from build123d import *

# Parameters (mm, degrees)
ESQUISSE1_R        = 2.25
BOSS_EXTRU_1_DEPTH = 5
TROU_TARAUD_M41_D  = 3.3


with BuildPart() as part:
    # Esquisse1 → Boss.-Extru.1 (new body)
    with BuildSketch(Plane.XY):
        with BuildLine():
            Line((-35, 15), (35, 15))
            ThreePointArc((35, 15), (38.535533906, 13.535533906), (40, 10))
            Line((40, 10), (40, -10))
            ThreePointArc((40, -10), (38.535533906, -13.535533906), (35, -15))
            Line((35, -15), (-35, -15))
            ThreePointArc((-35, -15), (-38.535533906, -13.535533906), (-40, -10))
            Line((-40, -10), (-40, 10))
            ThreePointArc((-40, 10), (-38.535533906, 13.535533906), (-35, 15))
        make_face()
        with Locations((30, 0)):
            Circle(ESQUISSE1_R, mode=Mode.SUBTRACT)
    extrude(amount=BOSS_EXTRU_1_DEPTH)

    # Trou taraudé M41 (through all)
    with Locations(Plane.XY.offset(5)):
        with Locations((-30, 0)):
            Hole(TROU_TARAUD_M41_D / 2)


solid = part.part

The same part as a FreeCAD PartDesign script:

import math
import FreeCAD as App
import Part
import Sketcher

V = App.Vector
Q = App.Units.Quantity

doc = App.newDocument("Part")
params = doc.addObject("Spreadsheet::Sheet", "Params")
for row, (alias, value) in enumerate([
    ("sketch1_radius", "5 mm"),
    ("sketch1_diameter", "4.5 mm"),
    ("sketch1_width", "70 mm"),
    ("sketch1_height", "20 mm"),
    ("pad1_length", "5 mm"),
    ("sketch2_diameter", "3.3 mm"),
    ("hole_diameter", "3.3 mm"),
], start=1):
    params.set(f"A{row}", alias)
    params.set(f"B{row}", "=" + value)
    params.setAlias(f"B{row}", alias)

body = doc.addObject("PartDesign::Body", "Body")

sketch1 = body.newObject("Sketcher::SketchObject", "Sketch")
sketch1.AttachmentSupport = (doc.getObject("XY_Plane"), [""])
sketch1.MapMode = "FlatFace"
sketch1.addGeometry(Part.LineSegment(V(35, 15, 0), V(-35, 15, 0)), False)
sketch1.addGeometry(Part.ArcOfCircle(Part.Circle(V(-35, 10, 0), V(0, 0, 1), 5), math.radians(90), math.radians(180)), False)
sketch1.addGeometry(Part.LineSegment(V(-40, 10, 0), V(-40, -10, 0)), False)
sketch1.addGeometry(Part.ArcOfCircle(Part.Circle(V(-35, -10, 0), V(0, 0, 1), 5), math.radians(180), math.radians(270)), False)
sketch1.addGeometry(Part.LineSegment(V(-35, -15, 0), V(35, -15, 0)), False)
sketch1.addGeometry(Part.ArcOfCircle(Part.Circle(V(35, -10, 0), V(0, 0, 1), 5), math.radians(-90), math.radians(0)), False)
sketch1.addGeometry(Part.LineSegment(V(40, -10, 0), V(40, 10, 0)), False)
sketch1.addGeometry(Part.ArcOfCircle(Part.Circle(V(35, 10, 0), V(0, 0, 1), 5), math.radians(0), math.radians(90)), False)
sketch1.addGeometry(Part.Circle(V(30, 0, 0), V(0, 0, 1), 2.2), False)
sketch1.addConstraint(Sketcher.Constraint("Tangent", 0, 2, 1, 1))
sketch1.addConstraint(Sketcher.Constraint("Tangent", 1, 2, 2, 1))
sketch1.addConstraint(Sketcher.Constraint("Tangent", 2, 2, 3, 1))
sketch1.addConstraint(Sketcher.Constraint("Tangent", 3, 2, 4, 1))
sketch1.addConstraint(Sketcher.Constraint("Tangent", 4, 2, 5, 1))
sketch1.addConstraint(Sketcher.Constraint("Tangent", 5, 2, 6, 1))
sketch1.addConstraint(Sketcher.Constraint("Tangent", 6, 2, 7, 1))
sketch1.addConstraint(Sketcher.Constraint("Tangent", 7, 2, 0, 1))
sketch1.addConstraint(Sketcher.Constraint("Horizontal", 0))
sketch1.addConstraint(Sketcher.Constraint("Vertical", 2))
sketch1.addConstraint(Sketcher.Constraint("Horizontal", 4))
sketch1.addConstraint(Sketcher.Constraint("Vertical", 6))
sketch1.addConstraint(Sketcher.Constraint("Equal", 1, 3))
sketch1.addConstraint(Sketcher.Constraint("Equal", 3, 5))
sketch1.addConstraint(Sketcher.Constraint("Equal", 5, 7))
sketch1.addConstraint(Sketcher.Constraint("Symmetric", 1, 3, 5, 3, -1, 1))
sketch1.addConstraint(Sketcher.Constraint("PointOnObject", 8, 3, -1))
sketch1.addConstraint(Sketcher.Constraint("Radius", 1, Q("5 mm")))
sketch1.addConstraint(Sketcher.Constraint("Diameter", 8, Q("4.5 mm")))
sketch1.addConstraint(Sketcher.Constraint("DistanceX", 0, 2, 0, 1, Q("70 mm")))
sketch1.addConstraint(Sketcher.Constraint("DistanceY", 2, 2, 2, 1, Q("20 mm")))
sketch1.addConstraint(Sketcher.Constraint("DistanceX", -1, 1, 8, 3, Q("30 mm")))
sketch1.setExpression("Constraints[17]", "Params.sketch1_radius")
sketch1.setExpression("Constraints[18]", "Params.sketch1_diameter")
sketch1.setExpression("Constraints[19]", "Params.sketch1_width")
sketch1.setExpression("Constraints[20]", "Params.sketch1_height")
pad1 = body.newObject("PartDesign::Pad", "Pad")
pad1.Profile = sketch1
pad1.setExpression("Length", "Params.pad1_length")

sketch2 = body.newObject("Sketcher::SketchObject", "Sketch001")
sketch2.AttachmentSupport = (doc.getObject("XY_Plane"), [""])
sketch2.MapMode = "FlatFace"
sketch2.AttachmentOffset = App.Placement(V(0, 0, 5), App.Rotation())
sketch2.addGeometry(Part.Circle(V(-30, 0, 0), V(0, 0, 1), 1.6), False)
sketch2.addConstraint(Sketcher.Constraint("PointOnObject", 0, 3, -1))
sketch2.addConstraint(Sketcher.Constraint("Diameter", 0, Q("3.3 mm")))
sketch2.addConstraint(Sketcher.Constraint("DistanceX", 0, 3, -1, 1, Q("30 mm")))
sketch2.setExpression("Constraints[1]", "Params.sketch2_diameter")
doc.recompute()
hole = body.newObject("PartDesign::Hole", "Hole")
hole.Profile = sketch2
hole.ThreadType = "None"
hole.setExpression("Diameter", "Params.hole_diameter")
hole.DepthType = "ThroughAll"

doc.recompute()
